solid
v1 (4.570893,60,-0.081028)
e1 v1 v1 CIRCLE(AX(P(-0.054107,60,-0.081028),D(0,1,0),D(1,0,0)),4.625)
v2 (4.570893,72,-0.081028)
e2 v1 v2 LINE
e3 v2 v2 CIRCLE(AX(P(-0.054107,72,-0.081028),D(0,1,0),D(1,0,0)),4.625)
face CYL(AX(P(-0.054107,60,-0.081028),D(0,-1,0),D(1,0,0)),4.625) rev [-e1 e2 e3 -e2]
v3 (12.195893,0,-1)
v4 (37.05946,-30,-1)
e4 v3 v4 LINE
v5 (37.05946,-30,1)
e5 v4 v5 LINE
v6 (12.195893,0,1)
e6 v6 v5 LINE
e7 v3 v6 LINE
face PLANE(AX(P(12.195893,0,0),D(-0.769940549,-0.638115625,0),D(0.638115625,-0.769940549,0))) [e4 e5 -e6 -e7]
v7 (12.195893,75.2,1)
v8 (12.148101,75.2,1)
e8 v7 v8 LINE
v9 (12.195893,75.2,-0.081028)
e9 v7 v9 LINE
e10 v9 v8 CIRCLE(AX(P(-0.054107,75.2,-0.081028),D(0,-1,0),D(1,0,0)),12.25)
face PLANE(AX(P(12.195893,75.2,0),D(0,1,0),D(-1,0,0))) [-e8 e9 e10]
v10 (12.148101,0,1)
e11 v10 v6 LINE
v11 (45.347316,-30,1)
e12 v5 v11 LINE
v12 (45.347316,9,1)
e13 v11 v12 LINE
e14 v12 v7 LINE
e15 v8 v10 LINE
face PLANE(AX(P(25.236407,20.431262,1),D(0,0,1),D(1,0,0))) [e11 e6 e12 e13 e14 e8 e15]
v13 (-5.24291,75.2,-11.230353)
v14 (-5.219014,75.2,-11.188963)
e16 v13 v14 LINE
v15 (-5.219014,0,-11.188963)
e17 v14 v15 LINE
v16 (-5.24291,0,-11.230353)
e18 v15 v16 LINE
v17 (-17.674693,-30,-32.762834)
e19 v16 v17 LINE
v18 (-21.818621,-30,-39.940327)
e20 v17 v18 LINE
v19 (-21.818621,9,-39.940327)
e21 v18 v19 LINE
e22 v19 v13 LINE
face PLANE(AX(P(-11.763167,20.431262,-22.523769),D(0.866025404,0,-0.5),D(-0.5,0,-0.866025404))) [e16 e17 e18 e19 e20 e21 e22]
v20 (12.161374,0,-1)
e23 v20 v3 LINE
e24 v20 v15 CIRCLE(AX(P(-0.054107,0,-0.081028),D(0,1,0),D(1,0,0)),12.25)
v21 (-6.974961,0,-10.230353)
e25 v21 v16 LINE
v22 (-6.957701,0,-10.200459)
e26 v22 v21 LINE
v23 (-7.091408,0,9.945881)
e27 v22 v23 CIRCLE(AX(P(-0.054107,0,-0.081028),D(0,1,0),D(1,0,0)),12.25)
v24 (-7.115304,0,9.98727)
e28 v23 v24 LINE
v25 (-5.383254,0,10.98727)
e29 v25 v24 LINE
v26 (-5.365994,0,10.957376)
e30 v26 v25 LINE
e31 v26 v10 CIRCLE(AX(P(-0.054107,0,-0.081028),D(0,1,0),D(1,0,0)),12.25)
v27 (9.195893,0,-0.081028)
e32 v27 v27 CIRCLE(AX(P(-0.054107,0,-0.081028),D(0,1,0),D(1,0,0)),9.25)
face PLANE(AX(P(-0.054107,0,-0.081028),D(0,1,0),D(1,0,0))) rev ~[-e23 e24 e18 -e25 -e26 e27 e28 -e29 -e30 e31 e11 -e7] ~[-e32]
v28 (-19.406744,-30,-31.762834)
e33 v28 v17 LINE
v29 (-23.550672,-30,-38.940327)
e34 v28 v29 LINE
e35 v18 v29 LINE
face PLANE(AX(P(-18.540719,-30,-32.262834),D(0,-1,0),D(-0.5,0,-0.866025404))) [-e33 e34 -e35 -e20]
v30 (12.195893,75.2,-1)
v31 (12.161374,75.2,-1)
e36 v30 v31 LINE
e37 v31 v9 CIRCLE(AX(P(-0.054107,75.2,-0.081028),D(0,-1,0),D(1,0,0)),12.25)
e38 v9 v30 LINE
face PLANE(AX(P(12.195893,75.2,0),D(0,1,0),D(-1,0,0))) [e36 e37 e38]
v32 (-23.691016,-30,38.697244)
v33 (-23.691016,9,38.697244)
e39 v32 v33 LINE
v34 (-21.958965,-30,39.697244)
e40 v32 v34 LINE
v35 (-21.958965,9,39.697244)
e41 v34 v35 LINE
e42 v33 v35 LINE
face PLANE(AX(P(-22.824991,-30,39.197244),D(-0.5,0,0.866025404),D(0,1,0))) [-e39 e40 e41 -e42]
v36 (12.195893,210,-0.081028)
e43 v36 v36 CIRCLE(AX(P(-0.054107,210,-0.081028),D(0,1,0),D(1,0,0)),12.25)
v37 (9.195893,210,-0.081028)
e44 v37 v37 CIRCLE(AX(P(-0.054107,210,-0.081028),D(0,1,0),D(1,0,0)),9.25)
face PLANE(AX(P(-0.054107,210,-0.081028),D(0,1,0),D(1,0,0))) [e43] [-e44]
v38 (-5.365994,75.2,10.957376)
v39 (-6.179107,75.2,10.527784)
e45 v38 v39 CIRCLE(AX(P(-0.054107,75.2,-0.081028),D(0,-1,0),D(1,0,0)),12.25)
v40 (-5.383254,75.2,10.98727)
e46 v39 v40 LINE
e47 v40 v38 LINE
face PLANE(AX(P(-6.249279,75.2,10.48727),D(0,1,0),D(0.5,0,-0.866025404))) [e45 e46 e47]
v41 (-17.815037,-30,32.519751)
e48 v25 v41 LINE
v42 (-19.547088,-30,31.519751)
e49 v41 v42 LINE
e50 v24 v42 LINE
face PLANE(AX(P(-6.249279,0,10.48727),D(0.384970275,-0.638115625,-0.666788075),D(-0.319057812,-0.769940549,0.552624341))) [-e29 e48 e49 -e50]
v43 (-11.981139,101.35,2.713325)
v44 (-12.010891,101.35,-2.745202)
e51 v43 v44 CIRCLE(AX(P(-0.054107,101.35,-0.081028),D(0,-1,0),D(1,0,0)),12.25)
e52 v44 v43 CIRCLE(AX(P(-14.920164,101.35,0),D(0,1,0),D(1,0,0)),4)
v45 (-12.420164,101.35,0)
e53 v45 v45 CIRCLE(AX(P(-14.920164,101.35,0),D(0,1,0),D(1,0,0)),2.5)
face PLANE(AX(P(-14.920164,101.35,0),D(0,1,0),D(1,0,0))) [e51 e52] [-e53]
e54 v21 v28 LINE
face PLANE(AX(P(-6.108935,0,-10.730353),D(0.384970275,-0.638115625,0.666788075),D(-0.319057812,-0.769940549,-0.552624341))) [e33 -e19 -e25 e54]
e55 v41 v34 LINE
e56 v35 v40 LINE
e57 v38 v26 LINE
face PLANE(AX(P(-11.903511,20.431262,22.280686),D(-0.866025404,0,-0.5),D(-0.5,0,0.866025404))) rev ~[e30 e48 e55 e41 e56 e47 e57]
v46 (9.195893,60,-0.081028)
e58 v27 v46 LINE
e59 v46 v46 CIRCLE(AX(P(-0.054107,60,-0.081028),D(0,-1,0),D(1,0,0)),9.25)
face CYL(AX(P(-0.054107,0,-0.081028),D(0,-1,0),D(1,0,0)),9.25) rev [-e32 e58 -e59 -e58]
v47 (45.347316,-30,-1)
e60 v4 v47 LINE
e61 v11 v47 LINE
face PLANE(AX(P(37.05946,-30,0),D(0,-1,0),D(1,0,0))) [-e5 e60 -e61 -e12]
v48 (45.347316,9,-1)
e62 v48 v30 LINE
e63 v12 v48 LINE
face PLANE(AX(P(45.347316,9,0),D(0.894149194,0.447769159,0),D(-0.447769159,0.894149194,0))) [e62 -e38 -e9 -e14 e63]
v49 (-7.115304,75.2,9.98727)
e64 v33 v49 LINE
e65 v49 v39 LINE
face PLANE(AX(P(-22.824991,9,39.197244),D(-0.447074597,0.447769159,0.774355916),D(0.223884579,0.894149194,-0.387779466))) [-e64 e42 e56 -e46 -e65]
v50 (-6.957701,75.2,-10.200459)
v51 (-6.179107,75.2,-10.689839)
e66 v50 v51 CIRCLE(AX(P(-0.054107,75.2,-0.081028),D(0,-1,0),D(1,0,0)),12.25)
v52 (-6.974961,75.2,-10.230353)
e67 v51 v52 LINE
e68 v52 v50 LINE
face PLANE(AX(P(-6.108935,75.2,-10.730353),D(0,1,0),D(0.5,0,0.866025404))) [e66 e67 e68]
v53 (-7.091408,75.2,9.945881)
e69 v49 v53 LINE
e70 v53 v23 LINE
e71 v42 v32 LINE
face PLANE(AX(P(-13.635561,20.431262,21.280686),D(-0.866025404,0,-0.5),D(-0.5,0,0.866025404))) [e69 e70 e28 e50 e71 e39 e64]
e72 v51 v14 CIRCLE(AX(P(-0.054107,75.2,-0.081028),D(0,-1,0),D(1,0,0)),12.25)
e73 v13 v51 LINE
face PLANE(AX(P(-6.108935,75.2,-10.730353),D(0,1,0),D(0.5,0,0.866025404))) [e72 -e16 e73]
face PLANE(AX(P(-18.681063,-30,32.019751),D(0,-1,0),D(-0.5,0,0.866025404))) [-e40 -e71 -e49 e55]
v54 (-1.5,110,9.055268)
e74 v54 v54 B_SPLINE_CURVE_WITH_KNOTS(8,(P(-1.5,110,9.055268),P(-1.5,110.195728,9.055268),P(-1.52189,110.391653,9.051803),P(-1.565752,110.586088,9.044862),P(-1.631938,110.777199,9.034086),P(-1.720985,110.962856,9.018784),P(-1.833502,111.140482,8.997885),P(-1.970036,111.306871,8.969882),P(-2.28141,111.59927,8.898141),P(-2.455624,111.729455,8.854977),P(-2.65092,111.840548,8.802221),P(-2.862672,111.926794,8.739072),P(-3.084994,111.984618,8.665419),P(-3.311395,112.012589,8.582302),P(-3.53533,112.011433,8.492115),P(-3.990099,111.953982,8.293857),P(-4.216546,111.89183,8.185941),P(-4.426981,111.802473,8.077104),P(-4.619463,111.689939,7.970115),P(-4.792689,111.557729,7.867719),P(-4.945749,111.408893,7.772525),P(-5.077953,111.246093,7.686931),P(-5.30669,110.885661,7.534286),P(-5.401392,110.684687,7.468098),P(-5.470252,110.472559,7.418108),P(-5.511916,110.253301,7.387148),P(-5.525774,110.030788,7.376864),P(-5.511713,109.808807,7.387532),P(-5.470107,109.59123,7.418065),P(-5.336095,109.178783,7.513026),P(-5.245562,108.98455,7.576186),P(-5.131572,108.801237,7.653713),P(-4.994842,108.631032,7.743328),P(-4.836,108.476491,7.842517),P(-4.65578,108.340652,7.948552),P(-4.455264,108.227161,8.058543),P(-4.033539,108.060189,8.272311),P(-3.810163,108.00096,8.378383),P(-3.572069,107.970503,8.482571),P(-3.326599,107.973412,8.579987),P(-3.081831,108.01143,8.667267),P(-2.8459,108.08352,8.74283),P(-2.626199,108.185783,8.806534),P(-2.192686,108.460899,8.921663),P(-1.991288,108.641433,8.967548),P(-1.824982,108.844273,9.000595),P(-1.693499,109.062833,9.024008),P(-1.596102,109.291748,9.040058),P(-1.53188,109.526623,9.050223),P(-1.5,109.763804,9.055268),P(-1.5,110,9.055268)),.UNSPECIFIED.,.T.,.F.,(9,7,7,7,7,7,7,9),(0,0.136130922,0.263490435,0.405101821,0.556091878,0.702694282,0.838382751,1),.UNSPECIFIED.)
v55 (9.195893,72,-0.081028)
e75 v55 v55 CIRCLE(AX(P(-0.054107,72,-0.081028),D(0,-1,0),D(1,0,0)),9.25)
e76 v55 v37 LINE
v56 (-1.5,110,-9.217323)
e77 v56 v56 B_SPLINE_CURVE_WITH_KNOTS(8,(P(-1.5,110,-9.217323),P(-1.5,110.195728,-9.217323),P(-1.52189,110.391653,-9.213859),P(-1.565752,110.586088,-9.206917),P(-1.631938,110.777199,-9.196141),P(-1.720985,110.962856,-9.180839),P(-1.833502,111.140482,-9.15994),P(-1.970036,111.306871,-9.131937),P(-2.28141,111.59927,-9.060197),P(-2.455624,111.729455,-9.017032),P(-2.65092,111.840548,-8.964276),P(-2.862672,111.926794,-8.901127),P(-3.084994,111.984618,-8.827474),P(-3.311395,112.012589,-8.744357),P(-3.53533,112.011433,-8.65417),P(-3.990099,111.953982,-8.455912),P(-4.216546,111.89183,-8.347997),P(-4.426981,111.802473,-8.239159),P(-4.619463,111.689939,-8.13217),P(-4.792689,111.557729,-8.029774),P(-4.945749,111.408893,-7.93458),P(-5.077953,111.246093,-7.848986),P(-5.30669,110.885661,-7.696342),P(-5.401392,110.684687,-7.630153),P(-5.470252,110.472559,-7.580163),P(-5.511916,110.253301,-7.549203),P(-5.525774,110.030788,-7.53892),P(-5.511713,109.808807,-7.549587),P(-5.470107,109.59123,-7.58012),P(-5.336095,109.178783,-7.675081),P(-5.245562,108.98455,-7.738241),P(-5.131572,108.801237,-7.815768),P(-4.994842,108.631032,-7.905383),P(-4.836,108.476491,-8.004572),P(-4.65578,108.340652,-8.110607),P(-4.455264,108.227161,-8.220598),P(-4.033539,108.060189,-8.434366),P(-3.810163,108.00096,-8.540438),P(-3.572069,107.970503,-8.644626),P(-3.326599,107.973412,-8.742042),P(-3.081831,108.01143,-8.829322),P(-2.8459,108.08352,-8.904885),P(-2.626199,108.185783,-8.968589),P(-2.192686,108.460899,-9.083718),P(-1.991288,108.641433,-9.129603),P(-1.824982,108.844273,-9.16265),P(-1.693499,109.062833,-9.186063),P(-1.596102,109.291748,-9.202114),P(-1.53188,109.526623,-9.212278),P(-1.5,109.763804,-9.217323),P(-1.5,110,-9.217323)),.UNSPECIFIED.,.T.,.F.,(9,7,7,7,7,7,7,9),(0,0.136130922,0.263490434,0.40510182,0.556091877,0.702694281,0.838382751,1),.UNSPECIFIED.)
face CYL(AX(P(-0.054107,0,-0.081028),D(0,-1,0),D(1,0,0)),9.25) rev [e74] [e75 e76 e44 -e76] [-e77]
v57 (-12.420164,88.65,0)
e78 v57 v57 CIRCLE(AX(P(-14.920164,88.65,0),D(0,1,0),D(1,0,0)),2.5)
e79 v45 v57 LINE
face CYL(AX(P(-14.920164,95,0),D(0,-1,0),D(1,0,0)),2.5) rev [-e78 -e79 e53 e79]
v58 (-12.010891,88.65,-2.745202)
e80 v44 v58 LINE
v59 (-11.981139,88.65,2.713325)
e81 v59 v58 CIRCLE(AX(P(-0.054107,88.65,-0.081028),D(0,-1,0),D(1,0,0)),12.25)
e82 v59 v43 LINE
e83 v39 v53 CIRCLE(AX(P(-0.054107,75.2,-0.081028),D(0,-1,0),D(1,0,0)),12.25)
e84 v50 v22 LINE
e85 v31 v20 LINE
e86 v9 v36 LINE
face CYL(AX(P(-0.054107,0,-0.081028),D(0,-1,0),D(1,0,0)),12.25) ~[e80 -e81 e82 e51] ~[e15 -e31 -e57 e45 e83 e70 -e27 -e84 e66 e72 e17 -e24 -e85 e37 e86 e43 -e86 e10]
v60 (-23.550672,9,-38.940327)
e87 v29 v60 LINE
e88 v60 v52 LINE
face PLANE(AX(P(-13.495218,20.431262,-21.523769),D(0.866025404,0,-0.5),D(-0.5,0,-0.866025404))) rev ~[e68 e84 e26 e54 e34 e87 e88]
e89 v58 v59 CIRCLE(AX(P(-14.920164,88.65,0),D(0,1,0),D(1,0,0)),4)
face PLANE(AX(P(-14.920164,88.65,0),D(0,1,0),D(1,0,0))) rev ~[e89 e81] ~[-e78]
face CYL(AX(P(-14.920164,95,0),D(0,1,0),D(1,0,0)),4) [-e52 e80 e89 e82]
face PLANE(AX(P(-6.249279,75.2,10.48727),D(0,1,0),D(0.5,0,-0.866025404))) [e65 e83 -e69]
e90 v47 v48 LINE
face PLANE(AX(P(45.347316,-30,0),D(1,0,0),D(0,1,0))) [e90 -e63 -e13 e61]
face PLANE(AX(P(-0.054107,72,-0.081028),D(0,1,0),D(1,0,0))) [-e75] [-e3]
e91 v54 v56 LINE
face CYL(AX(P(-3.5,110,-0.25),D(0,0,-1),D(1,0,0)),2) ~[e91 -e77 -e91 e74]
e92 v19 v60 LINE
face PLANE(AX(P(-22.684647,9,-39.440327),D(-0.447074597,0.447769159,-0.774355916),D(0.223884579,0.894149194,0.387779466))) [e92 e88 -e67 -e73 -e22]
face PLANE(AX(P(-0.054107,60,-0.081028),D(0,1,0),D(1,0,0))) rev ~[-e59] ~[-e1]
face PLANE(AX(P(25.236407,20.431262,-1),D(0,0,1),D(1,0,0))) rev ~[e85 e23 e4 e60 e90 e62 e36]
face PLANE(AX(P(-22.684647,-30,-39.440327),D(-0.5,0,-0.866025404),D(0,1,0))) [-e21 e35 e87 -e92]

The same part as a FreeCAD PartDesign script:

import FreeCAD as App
import Part
import Sketcher
Q = App.Units.Quantity


def add_polygon(sketch, points):
    """Adds a closed chain of lines whose ends are joined by coincident constraints."""
    first, n = sketch.GeometryCount, len(points)
    for a, b in zip(points, points[1:] + points[:1]):
        sketch.addGeometry(Part.LineSegment(App.Vector(*a, 0), App.Vector(*b, 0)), False)
    for i in range(n):
        sketch.addConstraint(Sketcher.Constraint("Coincident", first + i, 2, first + (i + 1) % n, 1))

doc = App.newDocument("Part")
body = doc.addObject("PartDesign::Body", "Body")

sketch1 = body.newObject("Sketcher::SketchObject", "Sketch")
sketch1.AttachmentSupport = (doc.getObject("XZ_Plane"), [""])
sketch1.MapMode = "FlatFace"
sketch1.addGeometry([
    Part.Circle(App.Vector(0, 0, 0), App.Vector(0, 0, 1), 12),
    Part.Circle(App.Vector(0, 0, 0), App.Vector(0, 0, 1), 9),
], False)
sketch1.addConstraint([
    Sketcher.Constraint("Coincident", 1, 3, 0, 3),
    Sketcher.Constraint("Diameter", 0, Q("24.5 mm")),
    Sketcher.Constraint("Diameter", 1, Q("18.5 mm")),
    Sketcher.Constraint("DistanceX", 0, 3, -1, 1, Q("0.054107 mm")),
    Sketcher.Constraint("DistanceY", 0, 3, -1, 1, Q("0.081028 mm")),
])
pad1 = body.newObject("PartDesign::Pad", "Pad")
pad1.Profile = sketch1
pad1.Length = 210
pad1.Reversed = True

sketch2 = body.newObject("Sketcher::SketchObject", "Sketch001")
sketch2.AttachmentSupport = (doc.getObject("XZ_Plane"), [""])
sketch2.MapMode = "FlatFace"
sketch2.AttachmentOffset = App.Placement(App.Vector(0, 0, -60), App.Rotation())
sketch2.addGeometry([
    Part.Circle(App.Vector(-0.1, -0.1, 0), App.Vector(0, 0, 1), 9.5),
    Part.Circle(App.Vector(-0.1, -0.1, 0), App.Vector(0, 0, 1), 4.6),
], False)
sketch2.addConstraint([
    Sketcher.Constraint("Coincident", 1, 3, 0, 3),
    Sketcher.Constraint("Diameter", 0, Q("19 mm")),
    Sketcher.Constraint("Diameter", 1, Q("9.25 mm")),
    Sketcher.Constraint("DistanceX", 0, 3, -1, 1, Q("0.054107 mm")),
    Sketcher.Constraint("DistanceY", 0, 3, -1, 1, Q("0.081028 mm")),
])
pad2 = body.newObject("PartDesign::Pad", "Pad001")
pad2.Profile = sketch2
pad2.Length = 12
pad2.Reversed = True

sketch3 = body.newObject("Sketcher::SketchObject", "Sketch002")
sketch3.AttachmentSupport = (doc.getObject("XY_Plane"), [""])
sketch3.MapMode = "FlatFace"
add_polygon(sketch3, [(12.2, 75.2), (9.8, 75.2), (11.2, 0), (12.2, 0), (37.1, -30), (45.3, -30), (45.3, 9)])
sketch3.addConstraint([
    Sketcher.Constraint("Horizontal", 0),
    Sketcher.Constraint("Horizontal", 2),
    Sketcher.Constraint("Horizontal", 4),
    Sketcher.Constraint("Vertical", 5),
    Sketcher.Constraint("PointOnObject", 1, 2, -1),
    Sketcher.Constraint("Vertical", 2, 2, 6, 2),
    Sketcher.Constraint("DistanceX", 2, 1, 2, 2, Q("1 mm")),
    Sketcher.Constraint("DistanceY", 5, 1, 5, 2, Q("39 mm")),
    Sketcher.Constraint("DistanceY", 3, 2, -1, 1, Q("30 mm")),
    Sketcher.Constraint("DistanceY", -1, 1, 0, 2, Q("75.2 mm")),
    Sketcher.Constraint("DistanceX", 0, 2, 0, 1, Q("2.367682 mm")),
    Sketcher.Constraint("Distance", 6, Q("74.036861 mm")),
    Sketcher.Constraint("DistanceX", 4, 1, 4, 2, Q("8.287856 mm")),
    Sketcher.Constraint("DistanceX", -1, 1, 0, 2, Q("9.828211 mm")),
])
pad3 = body.newObject("PartDesign::Pad", "Pad002")
pad3.Profile = sketch3
pad3.Length = 2
pad3.Midplane = True
doc.recompute()

datumline = body.newObject("PartDesign::Line", "DatumLine")
datumline.Placement = App.Placement(App.Vector(-0.054107, 0, -0.081028), App.Rotation(App.Vector(0, 0, 1), App.Vector(0, 1, 0)))
polarpattern = body.newObject("PartDesign::PolarPattern", "PolarPattern")
polarpattern.Originals = [pad3]
polarpattern.Axis = (datumline, [""])
polarpattern.Angle = 360
polarpattern.Occurrences = 3
body.Tip = polarpattern

sketch4 = body.newObject("Sketcher::SketchObject", "Sketch003")
sketch4.AttachmentSupport = (doc.getObject("XZ_Plane"), [""])
sketch4.MapMode = "FlatFace"
sketch4.AttachmentOffset = App.Placement(App.Vector(0, 0, -95), App.Rotation())
sketch4.addGeometry([
    Part.Circle(App.Vector(-14.9, 0, 0), App.Vector(0, 0, 1), 4),
    Part.Circle(App.Vector(-14.9, 0, 0), App.Vector(0, 0, 1), 2.5),
], False)
sketch4.addConstraint([
    Sketcher.Constraint("Coincident", 1, 3, 0, 3),
    Sketcher.Constraint("PointOnObject", 0, 3, -1),
    Sketcher.Constraint("Diameter", 0, Q("8 mm")),
    Sketcher.Constraint("Diameter", 1, Q("5 mm")),
    Sketcher.Constraint("DistanceX", 0, 3, -1, 1, Q("14.920164 mm")),
])
pad4 = body.newObject("PartDesign::Pad", "Pad003")
pad4.Profile = sketch4
pad4.Type = "TwoLengths"
pad4.Length = 6.35
pad4.Length2 = 6.35
pad4.Reversed = True

sketch5 = body.newObject("Sketcher::SketchObject", "Sketch004")
sketch5.AttachmentSupport = (doc.getObject("XZ_Plane"), [""])
sketch5.MapMode = "FlatFace"
sketch5.AttachmentOffset = App.Placement(App.Vector(0, 0, -110), App.Rotation())
add_polygon(sketch5, [(-3.5, -10), (-3.5, 9.5), (-1.5, 9.5), (-1.5, -10)])
sketch5.addGeometry(Part.LineSegment(App.Vector(-3.5, -10, 0), App.Vector(-3.5, 9.5, 0)), True)
sketch5.addConstraint([
    Sketcher.Constraint("Vertical", 0),
    Sketcher.Constraint("Horizontal", 1),
    Sketcher.Constraint("Vertical", 2),
    Sketcher.Constraint("Horizontal", 3),
    Sketcher.Constraint("Vertical", 4),
    Sketcher.Constraint("Coincident", 4, 1, 3, 2),
    Sketcher.Constraint("Horizontal", 1, 2, 4, 2),
    Sketcher.Constraint("DistanceX", 1, 1, 1, 2, Q("2 mm")),
    Sketcher.Constraint("DistanceY", 0, 1, 0, 2, Q("19.5 mm")),
    Sketcher.Constraint("DistanceY", 2, 2, -1, 1, Q("10 mm")),
    Sketcher.Constraint("DistanceX", 0, 2, -1, 1, Q("3.5 mm")),
])
revolution = body.newObject("PartDesign::Revolution", "Revolution")
revolution.Profile = sketch5
revolution.ReferenceAxis = (sketch5, ["Axis0"])
revolution.Angle = 360

doc.recompute()
